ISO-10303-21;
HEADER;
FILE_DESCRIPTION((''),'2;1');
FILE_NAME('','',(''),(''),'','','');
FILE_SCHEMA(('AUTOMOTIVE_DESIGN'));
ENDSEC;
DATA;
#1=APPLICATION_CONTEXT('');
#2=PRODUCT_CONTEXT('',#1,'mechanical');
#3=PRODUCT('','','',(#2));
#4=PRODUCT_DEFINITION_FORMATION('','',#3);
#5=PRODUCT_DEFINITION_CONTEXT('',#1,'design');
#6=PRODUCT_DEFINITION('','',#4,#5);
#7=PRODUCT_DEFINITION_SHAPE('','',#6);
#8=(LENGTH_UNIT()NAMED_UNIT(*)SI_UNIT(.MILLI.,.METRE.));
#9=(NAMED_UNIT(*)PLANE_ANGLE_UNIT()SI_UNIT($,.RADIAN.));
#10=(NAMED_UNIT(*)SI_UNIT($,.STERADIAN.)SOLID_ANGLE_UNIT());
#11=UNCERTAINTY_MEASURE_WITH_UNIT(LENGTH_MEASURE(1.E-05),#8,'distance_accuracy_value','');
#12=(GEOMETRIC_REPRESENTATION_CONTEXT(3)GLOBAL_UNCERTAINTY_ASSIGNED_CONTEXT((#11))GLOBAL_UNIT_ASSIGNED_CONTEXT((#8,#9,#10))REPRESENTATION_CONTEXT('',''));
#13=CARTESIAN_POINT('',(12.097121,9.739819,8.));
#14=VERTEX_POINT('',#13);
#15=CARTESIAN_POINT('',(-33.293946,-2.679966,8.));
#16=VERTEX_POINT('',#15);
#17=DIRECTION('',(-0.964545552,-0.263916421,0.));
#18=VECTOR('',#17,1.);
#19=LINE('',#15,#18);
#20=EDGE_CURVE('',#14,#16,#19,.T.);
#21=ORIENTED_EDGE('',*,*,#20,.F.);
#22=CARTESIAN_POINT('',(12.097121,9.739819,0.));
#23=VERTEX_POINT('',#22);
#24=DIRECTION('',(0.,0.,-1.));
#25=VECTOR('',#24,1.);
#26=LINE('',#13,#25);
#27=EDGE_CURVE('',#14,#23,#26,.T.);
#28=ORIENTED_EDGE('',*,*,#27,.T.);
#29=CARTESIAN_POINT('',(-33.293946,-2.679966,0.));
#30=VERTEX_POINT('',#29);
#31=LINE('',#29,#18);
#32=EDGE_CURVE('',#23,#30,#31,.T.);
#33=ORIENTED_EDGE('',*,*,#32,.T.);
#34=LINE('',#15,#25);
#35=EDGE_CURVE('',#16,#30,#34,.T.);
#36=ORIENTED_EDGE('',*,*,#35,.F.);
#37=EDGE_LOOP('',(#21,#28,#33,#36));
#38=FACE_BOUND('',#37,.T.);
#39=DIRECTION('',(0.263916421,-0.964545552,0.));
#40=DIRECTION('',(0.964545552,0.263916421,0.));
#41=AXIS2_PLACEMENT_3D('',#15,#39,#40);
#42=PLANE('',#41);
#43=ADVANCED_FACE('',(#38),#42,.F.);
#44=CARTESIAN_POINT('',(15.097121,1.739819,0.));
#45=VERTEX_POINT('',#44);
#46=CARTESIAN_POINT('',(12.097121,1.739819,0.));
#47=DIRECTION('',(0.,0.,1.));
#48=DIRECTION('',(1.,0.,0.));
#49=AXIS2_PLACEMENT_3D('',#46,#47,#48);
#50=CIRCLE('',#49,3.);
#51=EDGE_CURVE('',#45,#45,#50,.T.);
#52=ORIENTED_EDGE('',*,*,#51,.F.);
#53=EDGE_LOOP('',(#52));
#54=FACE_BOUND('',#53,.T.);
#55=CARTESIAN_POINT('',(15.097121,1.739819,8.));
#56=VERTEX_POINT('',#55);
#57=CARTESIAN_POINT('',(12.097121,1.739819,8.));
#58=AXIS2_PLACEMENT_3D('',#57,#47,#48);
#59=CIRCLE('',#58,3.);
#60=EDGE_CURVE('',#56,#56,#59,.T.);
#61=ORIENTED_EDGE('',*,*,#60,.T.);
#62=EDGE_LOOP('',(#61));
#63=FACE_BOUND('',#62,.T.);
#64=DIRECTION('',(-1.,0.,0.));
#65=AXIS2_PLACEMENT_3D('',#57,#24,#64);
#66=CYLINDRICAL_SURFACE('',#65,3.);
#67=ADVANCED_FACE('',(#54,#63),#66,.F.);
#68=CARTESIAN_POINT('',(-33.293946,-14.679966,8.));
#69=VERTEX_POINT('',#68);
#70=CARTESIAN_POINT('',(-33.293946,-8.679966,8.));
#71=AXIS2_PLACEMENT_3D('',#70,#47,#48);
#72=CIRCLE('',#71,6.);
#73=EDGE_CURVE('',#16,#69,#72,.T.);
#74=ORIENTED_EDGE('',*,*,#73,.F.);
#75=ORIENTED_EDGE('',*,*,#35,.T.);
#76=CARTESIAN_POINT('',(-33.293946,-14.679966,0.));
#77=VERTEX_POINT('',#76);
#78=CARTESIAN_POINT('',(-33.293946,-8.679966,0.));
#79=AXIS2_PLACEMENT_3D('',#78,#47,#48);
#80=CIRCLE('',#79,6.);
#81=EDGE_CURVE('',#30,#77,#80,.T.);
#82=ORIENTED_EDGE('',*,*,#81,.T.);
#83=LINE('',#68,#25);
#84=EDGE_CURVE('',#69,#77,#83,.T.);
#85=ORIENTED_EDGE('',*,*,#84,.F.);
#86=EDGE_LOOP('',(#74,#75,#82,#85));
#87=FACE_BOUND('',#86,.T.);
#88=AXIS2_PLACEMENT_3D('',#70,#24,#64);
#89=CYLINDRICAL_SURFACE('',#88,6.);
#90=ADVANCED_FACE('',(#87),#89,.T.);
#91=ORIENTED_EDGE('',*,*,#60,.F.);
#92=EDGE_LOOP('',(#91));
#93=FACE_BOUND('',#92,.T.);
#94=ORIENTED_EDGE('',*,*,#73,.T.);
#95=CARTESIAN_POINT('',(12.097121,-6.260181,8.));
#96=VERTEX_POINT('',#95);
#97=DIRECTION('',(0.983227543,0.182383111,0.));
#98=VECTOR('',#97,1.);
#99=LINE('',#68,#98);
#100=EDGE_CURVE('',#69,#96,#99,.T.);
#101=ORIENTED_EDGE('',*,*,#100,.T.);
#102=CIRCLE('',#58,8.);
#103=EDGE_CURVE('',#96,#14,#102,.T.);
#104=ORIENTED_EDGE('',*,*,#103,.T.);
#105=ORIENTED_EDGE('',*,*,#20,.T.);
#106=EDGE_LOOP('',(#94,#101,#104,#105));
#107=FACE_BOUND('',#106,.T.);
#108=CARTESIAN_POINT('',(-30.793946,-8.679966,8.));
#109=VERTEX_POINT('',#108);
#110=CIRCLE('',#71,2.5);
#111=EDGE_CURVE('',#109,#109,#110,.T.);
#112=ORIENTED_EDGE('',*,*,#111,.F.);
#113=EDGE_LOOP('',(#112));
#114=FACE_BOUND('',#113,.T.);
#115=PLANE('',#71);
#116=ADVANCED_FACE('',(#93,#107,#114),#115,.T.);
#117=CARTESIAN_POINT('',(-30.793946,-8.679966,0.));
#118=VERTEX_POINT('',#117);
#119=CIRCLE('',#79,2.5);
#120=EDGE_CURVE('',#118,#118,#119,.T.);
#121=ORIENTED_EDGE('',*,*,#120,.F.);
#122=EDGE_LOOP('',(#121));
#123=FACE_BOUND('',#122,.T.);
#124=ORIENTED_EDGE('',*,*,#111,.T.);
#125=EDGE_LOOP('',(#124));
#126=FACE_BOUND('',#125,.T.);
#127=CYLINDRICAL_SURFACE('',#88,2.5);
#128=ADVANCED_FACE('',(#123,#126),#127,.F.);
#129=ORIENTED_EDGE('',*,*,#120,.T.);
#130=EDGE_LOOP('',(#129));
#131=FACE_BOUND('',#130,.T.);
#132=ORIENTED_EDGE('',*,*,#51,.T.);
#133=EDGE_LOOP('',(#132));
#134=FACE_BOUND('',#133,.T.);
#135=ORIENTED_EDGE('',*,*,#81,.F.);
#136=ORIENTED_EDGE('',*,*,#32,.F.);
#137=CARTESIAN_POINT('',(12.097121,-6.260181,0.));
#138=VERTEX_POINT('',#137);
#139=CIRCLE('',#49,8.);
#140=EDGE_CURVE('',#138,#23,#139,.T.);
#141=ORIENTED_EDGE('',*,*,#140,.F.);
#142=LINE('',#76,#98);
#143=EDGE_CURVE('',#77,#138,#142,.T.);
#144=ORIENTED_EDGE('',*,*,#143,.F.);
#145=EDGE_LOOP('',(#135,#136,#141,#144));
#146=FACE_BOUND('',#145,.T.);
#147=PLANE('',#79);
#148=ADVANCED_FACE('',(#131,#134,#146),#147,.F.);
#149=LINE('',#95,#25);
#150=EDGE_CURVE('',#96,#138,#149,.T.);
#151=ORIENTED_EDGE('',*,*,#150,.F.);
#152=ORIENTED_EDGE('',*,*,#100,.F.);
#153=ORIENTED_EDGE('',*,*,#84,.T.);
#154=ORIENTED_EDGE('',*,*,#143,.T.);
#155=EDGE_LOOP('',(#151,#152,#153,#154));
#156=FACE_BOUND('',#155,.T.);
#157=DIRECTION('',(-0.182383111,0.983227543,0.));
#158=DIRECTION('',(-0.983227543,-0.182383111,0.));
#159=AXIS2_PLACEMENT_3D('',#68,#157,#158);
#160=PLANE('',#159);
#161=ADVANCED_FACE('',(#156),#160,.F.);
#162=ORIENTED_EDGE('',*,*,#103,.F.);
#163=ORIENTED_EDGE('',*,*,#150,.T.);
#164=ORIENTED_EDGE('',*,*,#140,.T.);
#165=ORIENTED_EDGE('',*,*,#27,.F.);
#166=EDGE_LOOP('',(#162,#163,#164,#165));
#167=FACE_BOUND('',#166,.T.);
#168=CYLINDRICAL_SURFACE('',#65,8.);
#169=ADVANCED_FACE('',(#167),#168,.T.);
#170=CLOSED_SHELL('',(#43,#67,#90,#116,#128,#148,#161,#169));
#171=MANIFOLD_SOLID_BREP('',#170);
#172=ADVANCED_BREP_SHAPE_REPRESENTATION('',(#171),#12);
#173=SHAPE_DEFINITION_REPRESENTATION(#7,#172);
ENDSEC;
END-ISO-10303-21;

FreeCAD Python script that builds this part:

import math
import FreeCAD as App
import Part
import Sketcher

V = App.Vector

doc = App.newDocument("Part")
body = doc.addObject("PartDesign::Body", "Body")

# Sketch on XY plane
sketch1 = body.newObject("Sketcher::SketchObject", "Sketch")
sketch1.AttachmentSupport = (doc.getObject("XY_Plane"), [""])
sketch1.MapMode = "FlatFace"
sketch1.addGeometry([
    Part.LineSegment(V(12.1, 9.7, 0), V(-33.3, -2.7, 0)),  # 0
    Part.ArcOfCircle(Part.Circle(V(-33.3, -8.7, 0), V(0, 0, 1), 6), math.radians(90), math.radians(270)),  # 1
    Part.LineSegment(V(-33.3, -14.7, 0), V(12.1, -6.3, 0)),  # 2
    Part.ArcOfCircle(Part.Circle(V(12.1, 1.7, 0), V(0, 0, 1), 8), math.radians(-90), math.radians(90)),  # 3
    Part.Circle(V(-33.3, -8.7, 0), V(0, 0, 1), 2.5),  # 4
    Part.Circle(V(12.1, 1.7, 0), V(0, 0, 1), 3),  # 5
], False)
sketch1.addConstraint([
    Sketcher.Constraint("Coincident", 0, 2, 1, 1),
    Sketcher.Constraint("Coincident", 1, 2, 2, 1),
    Sketcher.Constraint("Coincident", 2, 2, 3, 1),
    Sketcher.Constraint("Coincident", 3, 2, 0, 1),
    Sketcher.Constraint("Coincident", 4, 3, 1, 3),
    Sketcher.Constraint("Coincident", 5, 3, 3, 3),
    Sketcher.Constraint("Vertical", 4, 3, 0, 2),
    Sketcher.Constraint("Vertical", 0, 2, 1, 2),
    Sketcher.Constraint("Vertical", 5, 3, 2, 2),
    Sketcher.Constraint("Vertical", 2, 2, 3, 2),
    Sketcher.Constraint("Diameter", 4, 5.0),
    Sketcher.Constraint("Diameter", 5, 6.0),
    Sketcher.Constraint("Radius", 1, 6.0),
    Sketcher.Constraint("Radius", 3, 8.0),
    Sketcher.Constraint("DistanceX", -1, 1, 3, 3, 12.097121),
    Sketcher.Constraint("DistanceY", -1, 1, 3, 3, 1.739819),
    Sketcher.Constraint("Distance", 0, 47.059536),
    Sketcher.Constraint("Distance", 2, 46.165373),
])
pad1 = body.newObject("PartDesign::Pad", "Pad")
pad1.Profile = sketch1
pad1.Length = 8

doc.recompute()
